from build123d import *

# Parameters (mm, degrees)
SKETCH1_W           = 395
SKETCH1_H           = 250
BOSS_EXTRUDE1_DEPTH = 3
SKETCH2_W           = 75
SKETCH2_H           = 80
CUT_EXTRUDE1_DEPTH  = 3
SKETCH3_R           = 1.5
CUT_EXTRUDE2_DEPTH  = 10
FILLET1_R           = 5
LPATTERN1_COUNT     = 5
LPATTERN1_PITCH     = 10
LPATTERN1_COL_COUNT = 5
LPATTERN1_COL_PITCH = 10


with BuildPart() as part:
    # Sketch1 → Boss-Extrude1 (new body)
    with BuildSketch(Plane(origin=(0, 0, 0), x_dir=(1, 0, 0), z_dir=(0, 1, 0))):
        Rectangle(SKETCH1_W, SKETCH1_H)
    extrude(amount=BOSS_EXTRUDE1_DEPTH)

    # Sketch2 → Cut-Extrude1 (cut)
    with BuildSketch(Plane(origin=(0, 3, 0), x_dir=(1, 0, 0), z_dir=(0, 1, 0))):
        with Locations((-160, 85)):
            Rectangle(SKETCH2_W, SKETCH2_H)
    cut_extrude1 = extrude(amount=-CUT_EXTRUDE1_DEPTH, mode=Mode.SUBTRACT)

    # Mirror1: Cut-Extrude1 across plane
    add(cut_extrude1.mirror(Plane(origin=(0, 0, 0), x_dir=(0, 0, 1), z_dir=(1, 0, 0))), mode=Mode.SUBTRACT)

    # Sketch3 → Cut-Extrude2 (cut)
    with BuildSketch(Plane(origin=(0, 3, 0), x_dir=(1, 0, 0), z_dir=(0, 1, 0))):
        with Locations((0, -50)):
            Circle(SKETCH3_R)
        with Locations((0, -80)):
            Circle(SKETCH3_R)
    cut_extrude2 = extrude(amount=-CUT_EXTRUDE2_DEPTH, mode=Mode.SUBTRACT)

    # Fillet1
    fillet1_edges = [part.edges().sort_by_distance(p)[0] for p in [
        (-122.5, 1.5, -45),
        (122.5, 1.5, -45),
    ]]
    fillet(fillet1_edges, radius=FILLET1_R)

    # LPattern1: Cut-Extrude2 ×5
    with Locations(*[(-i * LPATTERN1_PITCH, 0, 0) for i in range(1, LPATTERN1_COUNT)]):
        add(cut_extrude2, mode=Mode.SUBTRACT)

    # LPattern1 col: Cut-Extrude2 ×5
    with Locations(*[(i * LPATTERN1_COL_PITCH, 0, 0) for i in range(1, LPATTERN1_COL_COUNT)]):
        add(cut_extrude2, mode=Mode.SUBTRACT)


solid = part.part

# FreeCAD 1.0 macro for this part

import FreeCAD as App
import Part
import Sketcher


def edges_at(feature, points):
    """Names of the edges that pass closest to the given points."""
    edges = feature.Shape.Edges
    near = lambda p: min(range(len(edges)), key=lambda i: edges[i].distToShape(Part.Vertex(*p))[0])
    return sorted({f"Edge{near(p) + 1}" for p in points})

doc = App.newDocument("Part")
body = doc.addObject("PartDesign::Body", "Body")

sketch1 = doc.addObject("Sketcher::SketchObject", "Sketch")
body.addObject(sketch1)
sketch1.AttachmentSupport = (doc.XZ_Plane, [""])
sketch1.MapMode = "FlatFace"
sketch1.addGeometry([
    Part.LineSegment(App.Vector(-198, -125, 0), App.Vector(-198, 125, 0)),
    Part.LineSegment(App.Vector(-198, 125, 0), App.Vector(198, 125, 0)),
    Part.LineSegment(App.Vector(198, 125, 0), App.Vector(198, -125, 0)),
    Part.LineSegment(App.Vector(198, -125, 0), App.Vector(-198, -125, 0)),
], False)
sketch1.addConstraint([
    Sketcher.Constraint("Coincident", 0, 2, 1, 1),
    Sketcher.Constraint("Coincident", 1, 2, 2, 1),
    Sketcher.Constraint("Coincident", 2, 2, 3, 1),
    Sketcher.Constraint("Coincident", 3, 2, 0, 1),
    Sketcher.Constraint("Vertical", 0),
    Sketcher.Constraint("Horizontal", 1),
    Sketcher.Constraint("Vertical", 2),
    Sketcher.Constraint("Horizontal", 3),
    Sketcher.Constraint("Symmetric", 0, 2, 2, 2, -1, 1),
    Sketcher.Constraint("DistanceX", 1, 1, 1, 2, 395.0),
    Sketcher.Constraint("DistanceY", 0, 1, 0, 2, 250.0),
])
pad1 = doc.addObject("PartDesign::Pad", "Pad")
body.addObject(pad1)
pad1.Profile = sketch1
pad1.Length = 3
pad1.Reversed = True

sketch2 = doc.addObject("Sketcher::SketchObject", "Sketch001")
body.addObject(sketch2)
sketch2.AttachmentSupport = (doc.XZ_Plane, [""])
sketch2.MapMode = "FlatFace"
sketch2.AttachmentOffset = App.Placement(App.Vector(0, 0, -3), App.Rotation())
sketch2.addGeometry([
    Part.LineSegment(App.Vector(-198, -125, 0), App.Vector(-198, -45, 0)),
    Part.LineSegment(App.Vector(-198, -45, 0), App.Vector(-122, -45, 0)),
    Part.LineSegment(App.Vector(-122, -45, 0), App.Vector(-122, -125, 0)),
    Part.LineSegment(App.Vector(-122, -125, 0), App.Vector(-198, -125, 0)),
], False)
sketch2.addConstraint([
    Sketcher.Constraint("Coincident", 0, 2, 1, 1),
    Sketcher.Constraint("Coincident", 1, 2, 2, 1),
    Sketcher.Constraint("Coincident", 2, 2, 3, 1),
    Sketcher.Constraint("Coincident", 3, 2, 0, 1),
    Sketcher.Constraint("Vertical", 0),
    Sketcher.Constraint("Horizontal", 1),
    Sketcher.Constraint("Vertical", 2),
    Sketcher.Constraint("Horizontal", 3),
    Sketcher.Constraint("DistanceX", 1, 1, 1, 2, 75.0),
    Sketcher.Constraint("DistanceY", 0, 1, 0, 2, 80.0),
    Sketcher.Constraint("DistanceY", 0, 2, -1, 1, 45.0),
    Sketcher.Constraint("DistanceX", 0, 2, -1, 1, 197.5),
])
pocket1 = doc.addObject("PartDesign::Pocket", "Pocket")
body.addObject(pocket1)
pocket1.Profile = sketch2
pocket1.Length = 3
pocket1.Reversed = True
doc.recompute()

mirrored = doc.addObject("PartDesign::Mirrored", "Mirrored")
body.addObject(mirrored)
mirrored.Originals = [pocket1]
mirrored.MirrorPlane = (doc.YZ_Plane, [""])
body.Tip = mirrored

sketch3 = doc.addObject("Sketcher::SketchObject", "Sketch002")
body.addObject(sketch3)
sketch3.AttachmentSupport = (doc.XZ_Plane, [""])
sketch3.MapMode = "FlatFace"
sketch3.AttachmentOffset = App.Placement(App.Vector(0, 0, -3), App.Rotation())
sketch3.addGeometry([
    Part.Circle(App.Vector(0, 50, 0), App.Vector(0, 0, 1), 1.5),
    Part.Circle(App.Vector(0, 80, 0), App.Vector(0, 0, 1), 1.5),
], False)
sketch3.addConstraint([
    Sketcher.Constraint("Equal", 0, 1),
    Sketcher.Constraint("PointOnObject", 0, 3, -2),
    Sketcher.Constraint("PointOnObject", 1, 3, -2),
    Sketcher.Constraint("Diameter", 0, 3.0),
    Sketcher.Constraint("DistanceY", -1, 1, 0, 3, 50.0),
    Sketcher.Constraint("DistanceY", -1, 1, 1, 3, 80.0),
])
pocket2 = doc.addObject("PartDesign::Pocket", "Pocket001")
body.addObject(pocket2)
pocket2.Profile = sketch3
pocket2.Length = 10
pocket2.Reversed = True
doc.recompute()

fillet = doc.addObject("PartDesign::Fillet", "Fillet")
body.addObject(fillet)
fillet.Base = (pocket2, edges_at(pocket2, [(-122.5, 1.5, -45), (122.5, 1.5, -45)]))
fillet.Radius = 5
doc.recompute()

linearpattern = doc.addObject("PartDesign::LinearPattern", "LinearPattern")
body.addObject(linearpattern)
linearpattern.Originals = [pocket2]
linearpattern.Direction = (doc.X_Axis, [""])
linearpattern.Mode = "offset"
linearpattern.Offset = 10
linearpattern.Occurrences = 5
linearpattern.Reversed = True
body.Tip = linearpattern
doc.recompute()

linearpattern2 = doc.addObject("PartDesign::LinearPattern", "LinearPattern001")
body.addObject(linearpattern2)
linearpattern2.Originals = [pocket2]
linearpattern2.Direction = (doc.X_Axis, [""])
linearpattern2.Mode = "offset"
linearpattern2.Offset = 10
linearpattern2.Occurrences = 5
body.Tip = linearpattern2

doc.recompute()
